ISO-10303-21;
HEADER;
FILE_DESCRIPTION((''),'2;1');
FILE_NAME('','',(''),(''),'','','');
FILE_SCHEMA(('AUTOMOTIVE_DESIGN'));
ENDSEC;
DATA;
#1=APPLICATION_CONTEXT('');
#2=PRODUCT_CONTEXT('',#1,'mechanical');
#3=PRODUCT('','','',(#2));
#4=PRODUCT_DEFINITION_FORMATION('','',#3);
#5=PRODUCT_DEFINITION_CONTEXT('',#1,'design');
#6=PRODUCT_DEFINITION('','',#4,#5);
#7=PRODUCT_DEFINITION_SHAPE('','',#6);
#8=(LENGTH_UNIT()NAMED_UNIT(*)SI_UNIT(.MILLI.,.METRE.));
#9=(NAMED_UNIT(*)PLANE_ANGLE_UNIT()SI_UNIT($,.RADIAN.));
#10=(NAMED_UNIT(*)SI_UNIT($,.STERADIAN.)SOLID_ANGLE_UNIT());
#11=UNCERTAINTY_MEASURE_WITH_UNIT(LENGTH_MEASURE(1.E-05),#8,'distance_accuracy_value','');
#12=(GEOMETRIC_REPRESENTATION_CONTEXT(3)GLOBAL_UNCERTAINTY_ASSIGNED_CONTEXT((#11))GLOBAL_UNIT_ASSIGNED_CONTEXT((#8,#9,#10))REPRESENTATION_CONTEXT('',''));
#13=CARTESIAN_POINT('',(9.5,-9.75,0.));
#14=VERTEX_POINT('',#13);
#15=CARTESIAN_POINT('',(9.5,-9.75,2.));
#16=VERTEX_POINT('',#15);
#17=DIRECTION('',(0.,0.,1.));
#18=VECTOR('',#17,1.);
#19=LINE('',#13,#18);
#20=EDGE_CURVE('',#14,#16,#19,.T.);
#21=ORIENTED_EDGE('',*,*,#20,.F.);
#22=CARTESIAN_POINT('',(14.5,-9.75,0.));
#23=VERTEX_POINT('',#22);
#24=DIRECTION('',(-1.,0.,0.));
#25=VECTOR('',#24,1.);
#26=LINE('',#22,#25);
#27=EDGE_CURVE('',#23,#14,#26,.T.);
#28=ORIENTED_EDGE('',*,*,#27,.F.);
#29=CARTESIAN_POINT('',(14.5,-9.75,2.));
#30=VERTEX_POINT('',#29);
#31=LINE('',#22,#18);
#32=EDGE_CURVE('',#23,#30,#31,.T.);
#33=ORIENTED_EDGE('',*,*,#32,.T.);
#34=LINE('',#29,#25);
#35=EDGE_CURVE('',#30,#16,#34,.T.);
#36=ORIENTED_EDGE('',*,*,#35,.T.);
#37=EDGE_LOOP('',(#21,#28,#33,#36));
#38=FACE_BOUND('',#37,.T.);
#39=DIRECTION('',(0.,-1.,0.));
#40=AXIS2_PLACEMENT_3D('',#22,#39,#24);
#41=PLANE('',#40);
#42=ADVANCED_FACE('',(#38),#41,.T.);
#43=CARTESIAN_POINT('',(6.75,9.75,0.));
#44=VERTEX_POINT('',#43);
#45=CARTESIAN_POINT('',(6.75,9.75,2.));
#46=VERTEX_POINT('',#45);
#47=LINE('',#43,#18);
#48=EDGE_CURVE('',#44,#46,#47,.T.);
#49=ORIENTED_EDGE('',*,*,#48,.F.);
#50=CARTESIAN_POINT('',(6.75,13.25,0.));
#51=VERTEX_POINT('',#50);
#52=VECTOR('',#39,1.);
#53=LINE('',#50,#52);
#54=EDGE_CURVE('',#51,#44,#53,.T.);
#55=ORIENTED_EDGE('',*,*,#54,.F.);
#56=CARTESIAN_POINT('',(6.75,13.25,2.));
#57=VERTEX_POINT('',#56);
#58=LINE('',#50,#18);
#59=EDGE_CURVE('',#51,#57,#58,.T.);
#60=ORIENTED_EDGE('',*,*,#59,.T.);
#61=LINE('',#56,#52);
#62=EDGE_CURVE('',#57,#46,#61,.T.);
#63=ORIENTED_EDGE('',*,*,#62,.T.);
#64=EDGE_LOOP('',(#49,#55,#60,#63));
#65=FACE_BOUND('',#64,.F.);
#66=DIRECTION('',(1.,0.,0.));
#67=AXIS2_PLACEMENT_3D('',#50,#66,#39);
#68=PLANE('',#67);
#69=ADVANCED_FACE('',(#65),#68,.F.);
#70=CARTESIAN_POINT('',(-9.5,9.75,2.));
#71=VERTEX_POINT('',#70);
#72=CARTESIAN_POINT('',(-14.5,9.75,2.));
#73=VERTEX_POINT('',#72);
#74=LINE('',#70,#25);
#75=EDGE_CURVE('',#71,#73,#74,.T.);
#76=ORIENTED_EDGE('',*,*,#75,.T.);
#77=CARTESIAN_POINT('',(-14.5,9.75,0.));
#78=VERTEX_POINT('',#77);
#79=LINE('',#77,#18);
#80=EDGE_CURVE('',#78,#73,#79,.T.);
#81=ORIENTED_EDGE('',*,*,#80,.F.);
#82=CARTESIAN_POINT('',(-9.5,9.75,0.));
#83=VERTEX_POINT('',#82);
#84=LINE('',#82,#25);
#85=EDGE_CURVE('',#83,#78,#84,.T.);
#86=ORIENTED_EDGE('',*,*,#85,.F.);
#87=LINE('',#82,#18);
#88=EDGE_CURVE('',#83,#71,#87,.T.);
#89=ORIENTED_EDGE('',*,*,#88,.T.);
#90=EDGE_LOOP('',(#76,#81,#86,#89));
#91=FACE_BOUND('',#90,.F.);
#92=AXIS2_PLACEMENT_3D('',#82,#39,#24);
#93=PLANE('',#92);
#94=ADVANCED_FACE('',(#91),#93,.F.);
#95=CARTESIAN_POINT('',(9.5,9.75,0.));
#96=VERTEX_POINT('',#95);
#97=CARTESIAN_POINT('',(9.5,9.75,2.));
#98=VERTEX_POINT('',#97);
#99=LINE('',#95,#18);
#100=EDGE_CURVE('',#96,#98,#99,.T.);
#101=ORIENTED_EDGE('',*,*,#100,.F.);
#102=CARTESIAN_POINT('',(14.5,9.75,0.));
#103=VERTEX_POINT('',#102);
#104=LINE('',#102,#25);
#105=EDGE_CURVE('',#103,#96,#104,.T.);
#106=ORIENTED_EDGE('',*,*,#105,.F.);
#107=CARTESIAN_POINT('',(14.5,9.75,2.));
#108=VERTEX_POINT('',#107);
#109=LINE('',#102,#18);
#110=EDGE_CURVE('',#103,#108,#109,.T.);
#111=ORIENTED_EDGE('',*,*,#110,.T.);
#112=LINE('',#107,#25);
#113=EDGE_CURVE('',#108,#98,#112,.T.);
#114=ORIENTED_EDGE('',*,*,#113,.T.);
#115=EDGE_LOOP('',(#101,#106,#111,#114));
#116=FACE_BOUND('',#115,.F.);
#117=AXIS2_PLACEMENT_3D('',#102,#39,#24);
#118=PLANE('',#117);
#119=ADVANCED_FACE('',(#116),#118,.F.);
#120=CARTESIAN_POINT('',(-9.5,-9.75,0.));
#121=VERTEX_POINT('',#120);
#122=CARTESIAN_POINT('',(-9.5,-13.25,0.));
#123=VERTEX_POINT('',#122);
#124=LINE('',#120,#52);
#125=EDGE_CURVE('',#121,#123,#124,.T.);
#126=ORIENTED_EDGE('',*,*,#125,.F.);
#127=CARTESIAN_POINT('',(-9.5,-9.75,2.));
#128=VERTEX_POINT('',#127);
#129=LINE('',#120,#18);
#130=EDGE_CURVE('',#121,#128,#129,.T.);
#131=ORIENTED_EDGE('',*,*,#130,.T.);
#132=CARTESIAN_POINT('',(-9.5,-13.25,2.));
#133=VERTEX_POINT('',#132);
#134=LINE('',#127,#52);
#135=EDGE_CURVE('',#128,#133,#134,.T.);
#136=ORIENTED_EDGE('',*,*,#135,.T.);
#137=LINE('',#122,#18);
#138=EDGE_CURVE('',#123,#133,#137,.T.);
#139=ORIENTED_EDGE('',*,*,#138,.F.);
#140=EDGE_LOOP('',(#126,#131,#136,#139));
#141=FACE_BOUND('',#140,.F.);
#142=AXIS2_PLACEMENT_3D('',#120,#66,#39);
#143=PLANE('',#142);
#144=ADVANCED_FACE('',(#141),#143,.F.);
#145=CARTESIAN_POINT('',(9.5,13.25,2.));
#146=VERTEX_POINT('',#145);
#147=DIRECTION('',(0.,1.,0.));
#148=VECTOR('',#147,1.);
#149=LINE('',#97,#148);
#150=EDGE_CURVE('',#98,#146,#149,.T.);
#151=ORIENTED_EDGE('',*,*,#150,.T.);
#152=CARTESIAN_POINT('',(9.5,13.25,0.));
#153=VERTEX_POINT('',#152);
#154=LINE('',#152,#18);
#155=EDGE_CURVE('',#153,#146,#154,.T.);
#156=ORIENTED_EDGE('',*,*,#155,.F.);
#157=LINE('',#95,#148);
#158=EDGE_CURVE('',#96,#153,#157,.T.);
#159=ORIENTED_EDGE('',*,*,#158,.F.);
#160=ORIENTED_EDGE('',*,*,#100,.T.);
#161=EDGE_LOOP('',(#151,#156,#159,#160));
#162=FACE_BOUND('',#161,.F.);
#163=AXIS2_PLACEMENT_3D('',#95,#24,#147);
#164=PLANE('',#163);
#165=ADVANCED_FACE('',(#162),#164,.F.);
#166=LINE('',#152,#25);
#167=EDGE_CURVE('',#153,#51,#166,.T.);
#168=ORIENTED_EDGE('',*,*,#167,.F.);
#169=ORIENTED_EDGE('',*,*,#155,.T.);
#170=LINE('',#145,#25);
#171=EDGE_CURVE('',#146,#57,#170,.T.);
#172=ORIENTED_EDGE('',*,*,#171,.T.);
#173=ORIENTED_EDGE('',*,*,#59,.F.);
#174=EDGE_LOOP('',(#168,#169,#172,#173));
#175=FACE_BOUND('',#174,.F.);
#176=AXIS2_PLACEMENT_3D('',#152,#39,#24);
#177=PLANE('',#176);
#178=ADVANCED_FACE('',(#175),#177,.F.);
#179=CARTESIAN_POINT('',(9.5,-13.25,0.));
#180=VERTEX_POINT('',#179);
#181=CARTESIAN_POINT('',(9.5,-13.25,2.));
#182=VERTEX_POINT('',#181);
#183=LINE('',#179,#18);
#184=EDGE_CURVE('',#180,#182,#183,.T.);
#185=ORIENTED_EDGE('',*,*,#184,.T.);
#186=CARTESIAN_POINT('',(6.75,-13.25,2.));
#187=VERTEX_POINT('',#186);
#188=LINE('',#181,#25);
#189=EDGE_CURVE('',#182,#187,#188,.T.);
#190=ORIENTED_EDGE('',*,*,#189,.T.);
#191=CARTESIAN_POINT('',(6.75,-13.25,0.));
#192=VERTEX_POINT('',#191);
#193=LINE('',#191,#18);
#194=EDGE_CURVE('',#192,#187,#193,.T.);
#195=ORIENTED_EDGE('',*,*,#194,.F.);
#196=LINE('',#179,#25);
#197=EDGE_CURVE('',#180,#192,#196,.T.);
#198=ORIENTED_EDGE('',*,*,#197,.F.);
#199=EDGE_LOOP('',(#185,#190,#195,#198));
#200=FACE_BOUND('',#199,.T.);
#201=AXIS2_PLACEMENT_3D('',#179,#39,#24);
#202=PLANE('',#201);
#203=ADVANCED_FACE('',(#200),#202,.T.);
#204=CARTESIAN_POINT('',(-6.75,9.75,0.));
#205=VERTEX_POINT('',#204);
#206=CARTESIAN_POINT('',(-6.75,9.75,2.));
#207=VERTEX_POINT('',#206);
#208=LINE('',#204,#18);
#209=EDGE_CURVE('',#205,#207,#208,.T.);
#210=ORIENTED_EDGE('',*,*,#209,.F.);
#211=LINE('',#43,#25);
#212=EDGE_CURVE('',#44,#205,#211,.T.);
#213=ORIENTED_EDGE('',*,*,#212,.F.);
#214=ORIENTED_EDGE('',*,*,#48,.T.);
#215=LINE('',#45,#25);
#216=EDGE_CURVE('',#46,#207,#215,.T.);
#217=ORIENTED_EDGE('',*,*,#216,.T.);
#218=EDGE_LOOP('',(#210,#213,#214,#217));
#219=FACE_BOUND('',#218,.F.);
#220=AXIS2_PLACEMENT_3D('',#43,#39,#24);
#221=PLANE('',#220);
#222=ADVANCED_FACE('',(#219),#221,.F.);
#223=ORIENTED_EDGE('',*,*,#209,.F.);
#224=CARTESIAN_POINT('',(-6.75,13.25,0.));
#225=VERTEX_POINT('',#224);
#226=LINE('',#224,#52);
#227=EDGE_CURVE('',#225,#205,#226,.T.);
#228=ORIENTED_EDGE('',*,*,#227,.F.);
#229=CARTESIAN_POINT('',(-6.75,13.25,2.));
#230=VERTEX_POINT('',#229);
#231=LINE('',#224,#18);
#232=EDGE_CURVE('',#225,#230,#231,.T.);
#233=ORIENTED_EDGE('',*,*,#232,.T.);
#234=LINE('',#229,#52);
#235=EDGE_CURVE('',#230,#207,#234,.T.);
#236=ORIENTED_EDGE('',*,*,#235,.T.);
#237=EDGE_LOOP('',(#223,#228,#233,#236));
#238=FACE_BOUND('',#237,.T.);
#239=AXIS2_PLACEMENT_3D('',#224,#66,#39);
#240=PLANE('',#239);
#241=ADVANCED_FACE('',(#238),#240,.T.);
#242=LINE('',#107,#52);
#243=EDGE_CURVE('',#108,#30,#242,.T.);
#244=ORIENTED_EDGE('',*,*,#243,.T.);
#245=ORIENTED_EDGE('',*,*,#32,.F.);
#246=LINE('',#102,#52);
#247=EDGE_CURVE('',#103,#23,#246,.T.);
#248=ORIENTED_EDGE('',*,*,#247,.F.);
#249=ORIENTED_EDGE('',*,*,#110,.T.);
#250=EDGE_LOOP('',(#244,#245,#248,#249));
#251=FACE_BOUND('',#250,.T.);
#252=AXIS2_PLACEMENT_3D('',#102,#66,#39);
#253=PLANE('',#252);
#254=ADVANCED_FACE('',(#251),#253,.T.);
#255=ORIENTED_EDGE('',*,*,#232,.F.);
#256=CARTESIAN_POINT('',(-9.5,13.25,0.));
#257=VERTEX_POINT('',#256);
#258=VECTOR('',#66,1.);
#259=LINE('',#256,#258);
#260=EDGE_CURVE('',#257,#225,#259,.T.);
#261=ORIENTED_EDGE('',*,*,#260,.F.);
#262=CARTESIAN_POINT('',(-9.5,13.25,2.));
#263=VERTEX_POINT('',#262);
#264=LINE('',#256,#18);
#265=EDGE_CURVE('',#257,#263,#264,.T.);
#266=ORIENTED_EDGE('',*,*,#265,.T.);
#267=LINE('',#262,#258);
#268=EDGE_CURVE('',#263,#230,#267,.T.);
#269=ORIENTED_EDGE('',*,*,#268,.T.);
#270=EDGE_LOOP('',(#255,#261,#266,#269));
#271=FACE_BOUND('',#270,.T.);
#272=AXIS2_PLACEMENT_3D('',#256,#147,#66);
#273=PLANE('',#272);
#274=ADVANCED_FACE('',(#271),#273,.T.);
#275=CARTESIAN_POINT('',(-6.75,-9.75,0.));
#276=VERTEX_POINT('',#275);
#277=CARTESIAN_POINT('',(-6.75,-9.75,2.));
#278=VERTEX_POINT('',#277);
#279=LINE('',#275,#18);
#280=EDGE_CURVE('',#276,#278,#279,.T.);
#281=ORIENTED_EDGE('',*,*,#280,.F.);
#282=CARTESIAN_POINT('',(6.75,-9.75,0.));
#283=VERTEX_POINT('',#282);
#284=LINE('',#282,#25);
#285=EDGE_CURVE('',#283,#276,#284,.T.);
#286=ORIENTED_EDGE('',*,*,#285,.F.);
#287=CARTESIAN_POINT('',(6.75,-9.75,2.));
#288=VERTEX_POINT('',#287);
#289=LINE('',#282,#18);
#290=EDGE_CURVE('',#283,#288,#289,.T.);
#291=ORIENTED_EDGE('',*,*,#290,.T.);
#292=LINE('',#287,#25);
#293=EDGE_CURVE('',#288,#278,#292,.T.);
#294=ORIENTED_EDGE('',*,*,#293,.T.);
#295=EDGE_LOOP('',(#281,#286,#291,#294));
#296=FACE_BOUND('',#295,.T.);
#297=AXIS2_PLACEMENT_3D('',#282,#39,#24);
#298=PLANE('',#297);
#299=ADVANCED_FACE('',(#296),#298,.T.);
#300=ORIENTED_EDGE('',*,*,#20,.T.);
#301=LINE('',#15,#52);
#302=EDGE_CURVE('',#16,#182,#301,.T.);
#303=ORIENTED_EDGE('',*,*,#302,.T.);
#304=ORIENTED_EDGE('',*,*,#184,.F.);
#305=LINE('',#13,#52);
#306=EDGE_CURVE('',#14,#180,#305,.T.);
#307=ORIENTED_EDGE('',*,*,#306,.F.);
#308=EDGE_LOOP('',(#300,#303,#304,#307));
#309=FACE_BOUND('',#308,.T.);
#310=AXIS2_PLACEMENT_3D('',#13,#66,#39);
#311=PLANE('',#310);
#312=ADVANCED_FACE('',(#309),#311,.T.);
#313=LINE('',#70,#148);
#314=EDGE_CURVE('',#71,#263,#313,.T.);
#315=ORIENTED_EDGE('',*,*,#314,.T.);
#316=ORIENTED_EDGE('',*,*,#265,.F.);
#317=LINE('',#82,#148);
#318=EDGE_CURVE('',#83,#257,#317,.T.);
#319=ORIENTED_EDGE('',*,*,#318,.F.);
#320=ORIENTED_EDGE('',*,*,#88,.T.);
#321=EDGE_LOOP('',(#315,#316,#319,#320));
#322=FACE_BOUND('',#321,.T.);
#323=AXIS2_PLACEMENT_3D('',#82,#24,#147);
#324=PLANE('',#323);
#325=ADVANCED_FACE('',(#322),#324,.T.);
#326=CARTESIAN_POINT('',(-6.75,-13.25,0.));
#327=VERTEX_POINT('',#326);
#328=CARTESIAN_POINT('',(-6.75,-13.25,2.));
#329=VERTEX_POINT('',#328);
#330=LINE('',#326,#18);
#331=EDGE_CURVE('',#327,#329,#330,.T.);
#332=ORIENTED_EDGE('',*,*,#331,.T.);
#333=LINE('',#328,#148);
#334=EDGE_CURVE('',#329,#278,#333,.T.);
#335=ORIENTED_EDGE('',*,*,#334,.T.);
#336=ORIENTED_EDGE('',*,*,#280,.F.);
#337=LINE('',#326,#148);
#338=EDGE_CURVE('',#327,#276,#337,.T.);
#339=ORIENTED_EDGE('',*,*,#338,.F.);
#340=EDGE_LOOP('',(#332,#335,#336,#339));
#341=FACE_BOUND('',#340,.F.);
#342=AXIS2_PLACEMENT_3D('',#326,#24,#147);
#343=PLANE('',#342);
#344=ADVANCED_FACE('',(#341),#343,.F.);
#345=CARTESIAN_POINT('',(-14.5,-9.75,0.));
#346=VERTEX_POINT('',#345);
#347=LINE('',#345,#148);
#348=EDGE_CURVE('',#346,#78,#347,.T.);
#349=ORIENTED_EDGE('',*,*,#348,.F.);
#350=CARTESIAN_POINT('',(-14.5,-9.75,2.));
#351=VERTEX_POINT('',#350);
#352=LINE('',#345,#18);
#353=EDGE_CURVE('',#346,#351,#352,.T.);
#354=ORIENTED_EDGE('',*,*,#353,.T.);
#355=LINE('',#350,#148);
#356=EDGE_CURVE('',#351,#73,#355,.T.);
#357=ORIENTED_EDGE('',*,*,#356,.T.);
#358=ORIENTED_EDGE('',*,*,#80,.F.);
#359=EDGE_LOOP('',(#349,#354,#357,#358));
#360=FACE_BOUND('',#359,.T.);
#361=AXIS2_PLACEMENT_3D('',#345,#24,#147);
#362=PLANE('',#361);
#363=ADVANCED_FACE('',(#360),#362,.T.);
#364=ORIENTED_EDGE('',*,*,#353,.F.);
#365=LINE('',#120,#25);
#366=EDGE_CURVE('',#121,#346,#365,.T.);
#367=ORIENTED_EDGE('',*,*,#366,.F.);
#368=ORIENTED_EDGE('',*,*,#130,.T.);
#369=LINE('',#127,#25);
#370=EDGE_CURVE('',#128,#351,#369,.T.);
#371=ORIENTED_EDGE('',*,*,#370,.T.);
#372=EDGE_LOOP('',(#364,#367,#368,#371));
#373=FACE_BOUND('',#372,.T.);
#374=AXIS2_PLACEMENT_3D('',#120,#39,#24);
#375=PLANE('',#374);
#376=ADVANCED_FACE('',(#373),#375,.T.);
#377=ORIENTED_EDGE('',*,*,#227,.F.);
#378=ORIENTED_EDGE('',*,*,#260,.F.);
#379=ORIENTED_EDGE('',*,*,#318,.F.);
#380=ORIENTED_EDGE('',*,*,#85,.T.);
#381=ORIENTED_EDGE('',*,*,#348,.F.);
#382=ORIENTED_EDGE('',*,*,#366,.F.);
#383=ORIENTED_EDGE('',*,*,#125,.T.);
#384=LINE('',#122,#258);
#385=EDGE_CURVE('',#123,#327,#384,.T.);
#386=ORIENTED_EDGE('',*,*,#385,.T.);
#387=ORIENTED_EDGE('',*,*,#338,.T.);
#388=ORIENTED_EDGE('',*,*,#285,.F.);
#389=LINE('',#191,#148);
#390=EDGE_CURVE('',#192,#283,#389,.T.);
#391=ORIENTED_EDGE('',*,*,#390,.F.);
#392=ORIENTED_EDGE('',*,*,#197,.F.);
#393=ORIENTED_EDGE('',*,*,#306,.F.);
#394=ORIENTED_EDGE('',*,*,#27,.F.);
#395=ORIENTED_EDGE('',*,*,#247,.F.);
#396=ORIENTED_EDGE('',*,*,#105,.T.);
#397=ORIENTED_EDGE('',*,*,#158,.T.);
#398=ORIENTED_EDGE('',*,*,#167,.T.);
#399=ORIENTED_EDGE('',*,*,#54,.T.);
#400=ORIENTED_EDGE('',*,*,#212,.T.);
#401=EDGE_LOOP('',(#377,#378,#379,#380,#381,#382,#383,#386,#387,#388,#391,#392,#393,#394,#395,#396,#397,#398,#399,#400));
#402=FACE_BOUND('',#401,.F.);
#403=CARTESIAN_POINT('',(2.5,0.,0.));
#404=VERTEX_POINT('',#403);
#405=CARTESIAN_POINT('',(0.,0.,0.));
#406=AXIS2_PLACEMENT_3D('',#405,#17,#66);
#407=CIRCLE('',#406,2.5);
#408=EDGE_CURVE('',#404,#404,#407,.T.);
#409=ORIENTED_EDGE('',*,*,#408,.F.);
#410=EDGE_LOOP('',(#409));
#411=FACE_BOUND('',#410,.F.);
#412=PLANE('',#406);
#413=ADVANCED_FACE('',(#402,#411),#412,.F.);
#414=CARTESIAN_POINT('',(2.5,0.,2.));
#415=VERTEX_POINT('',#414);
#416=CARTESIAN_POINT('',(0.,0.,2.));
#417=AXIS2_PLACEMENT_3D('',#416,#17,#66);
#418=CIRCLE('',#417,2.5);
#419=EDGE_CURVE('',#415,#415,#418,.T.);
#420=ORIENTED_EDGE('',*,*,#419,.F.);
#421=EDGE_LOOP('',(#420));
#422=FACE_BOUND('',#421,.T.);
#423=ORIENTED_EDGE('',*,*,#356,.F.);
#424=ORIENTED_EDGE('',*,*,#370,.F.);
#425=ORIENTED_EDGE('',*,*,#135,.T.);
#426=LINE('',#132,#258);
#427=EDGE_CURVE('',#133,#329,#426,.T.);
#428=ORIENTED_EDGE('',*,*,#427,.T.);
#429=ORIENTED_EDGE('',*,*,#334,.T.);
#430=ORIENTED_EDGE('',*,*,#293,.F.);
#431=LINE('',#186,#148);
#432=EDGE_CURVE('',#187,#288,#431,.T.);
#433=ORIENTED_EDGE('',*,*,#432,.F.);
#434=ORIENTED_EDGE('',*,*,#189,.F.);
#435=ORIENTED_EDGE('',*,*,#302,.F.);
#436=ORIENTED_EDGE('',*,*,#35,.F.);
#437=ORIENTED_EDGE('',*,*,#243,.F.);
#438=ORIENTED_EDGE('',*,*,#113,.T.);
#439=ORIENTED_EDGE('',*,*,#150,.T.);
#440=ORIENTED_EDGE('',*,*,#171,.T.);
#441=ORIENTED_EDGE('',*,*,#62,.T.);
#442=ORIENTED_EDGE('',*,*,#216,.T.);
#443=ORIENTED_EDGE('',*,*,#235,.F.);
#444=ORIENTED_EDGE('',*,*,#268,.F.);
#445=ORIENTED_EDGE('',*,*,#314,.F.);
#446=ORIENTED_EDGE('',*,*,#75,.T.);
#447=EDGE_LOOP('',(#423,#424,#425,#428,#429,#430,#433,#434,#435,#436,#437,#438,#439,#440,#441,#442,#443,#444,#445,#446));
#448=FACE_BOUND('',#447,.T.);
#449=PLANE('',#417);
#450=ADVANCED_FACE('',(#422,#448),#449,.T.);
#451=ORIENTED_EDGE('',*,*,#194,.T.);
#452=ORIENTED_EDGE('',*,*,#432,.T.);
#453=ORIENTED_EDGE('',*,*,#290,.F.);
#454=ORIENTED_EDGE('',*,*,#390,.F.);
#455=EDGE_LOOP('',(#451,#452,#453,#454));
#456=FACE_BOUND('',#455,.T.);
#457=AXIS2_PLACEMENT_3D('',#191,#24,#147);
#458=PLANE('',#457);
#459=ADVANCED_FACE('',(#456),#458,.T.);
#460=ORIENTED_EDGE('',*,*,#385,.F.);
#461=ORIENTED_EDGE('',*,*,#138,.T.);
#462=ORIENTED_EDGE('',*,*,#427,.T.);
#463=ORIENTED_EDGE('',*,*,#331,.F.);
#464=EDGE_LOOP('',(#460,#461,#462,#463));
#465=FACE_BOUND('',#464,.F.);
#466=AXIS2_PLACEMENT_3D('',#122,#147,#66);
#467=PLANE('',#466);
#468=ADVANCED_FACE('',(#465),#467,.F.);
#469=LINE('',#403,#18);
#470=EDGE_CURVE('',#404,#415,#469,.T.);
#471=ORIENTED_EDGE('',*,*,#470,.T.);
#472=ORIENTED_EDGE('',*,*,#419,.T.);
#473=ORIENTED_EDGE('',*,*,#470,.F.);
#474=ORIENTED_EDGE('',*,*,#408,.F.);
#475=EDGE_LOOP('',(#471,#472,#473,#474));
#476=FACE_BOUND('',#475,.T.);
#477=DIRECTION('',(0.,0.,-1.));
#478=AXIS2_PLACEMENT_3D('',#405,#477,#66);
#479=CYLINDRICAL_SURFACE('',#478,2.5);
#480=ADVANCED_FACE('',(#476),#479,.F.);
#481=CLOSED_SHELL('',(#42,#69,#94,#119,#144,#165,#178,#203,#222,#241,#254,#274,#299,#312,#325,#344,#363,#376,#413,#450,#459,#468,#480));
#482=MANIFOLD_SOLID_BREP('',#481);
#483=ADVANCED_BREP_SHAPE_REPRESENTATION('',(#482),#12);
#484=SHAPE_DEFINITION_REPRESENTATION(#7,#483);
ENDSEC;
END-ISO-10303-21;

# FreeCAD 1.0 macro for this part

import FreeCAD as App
import Part
import Sketcher

V = App.Vector


def add_polygon(sketch, points):
    """Adds a closed chain of lines whose ends are joined by coincident constraints."""
    first, n = sketch.GeometryCount, len(points)
    for a, b in zip(points, points[1:] + points[:1]):
        sketch.addGeometry(Part.LineSegment(App.Vector(*a, 0), App.Vector(*b, 0)), False)
    for i in range(n):
        sketch.addConstraint(Sketcher.Constraint("Coincident", first + i, 2, first + (i + 1) % n, 1))

doc = App.newDocument("Part")
params = doc.addObject("Spreadsheet::Sheet", "Params")
for row, (alias, value) in enumerate([
    ("sketch1_diameter", "5 mm"),
    ("sketch1_width", "5 mm"),
    ("sketch1_height", "19.5 mm"),
    ("sketch1_height2", "3.5 mm"),
    ("sketch1_width2", "2.75 mm"),
    ("pad1_length", "2 mm"),
], start=1):
    params.set(f"A{row}", alias)
    params.set(f"B{row}", "=" + value)
    params.setAlias(f"B{row}", alias)

body = doc.addObject("PartDesign::Body", "Body")

sketch1 = body.newObject("Sketcher::SketchObject", "Sketch")
sketch1.AttachmentSupport = (doc.getObject("XY_Plane"), [""])
sketch1.MapMode = "FlatFace"
add_polygon(sketch1, [(14.5, -9.8), (14.5, 9.8), (9.5, 9.8), (9.5, 13.2), (6.8, 13.2), (6.8, 9.8), (-6.8, 9.8), (-6.8, 13.2), (-9.5, 13.2), (-9.5, 9.8), (-14.5, 9.8), (-14.5, -9.8), (-9.5, -9.8), (-9.5, -13.2), (-6.8, -13.2), (-6.8, -9.8), (6.8, -9.8), (6.8, -13.2), (9.5, -13.2), (9.5, -9.8)])
sketch1.addGeometry(Part.Circle(V(0, 0, 0), V(0, 0, 1), 2.5), False)
sketch1.addConstraint([
    Sketcher.Constraint("Vertical", 0),
    Sketcher.Constraint("Horizontal", 1),
    Sketcher.Constraint("Vertical", 2),
    Sketcher.Constraint("Horizontal", 3),
    Sketcher.Constraint("Vertical", 4),
    Sketcher.Constraint("Horizontal", 5),
    Sketcher.Constraint("Vertical", 6),
    Sketcher.Constraint("Horizontal", 7),
    Sketcher.Constraint("Vertical", 8),
    Sketcher.Constraint("Horizontal", 9),
    Sketcher.Constraint("Vertical", 10),
    Sketcher.Constraint("Horizontal", 11),
    Sketcher.Constraint("Vertical", 12),
    Sketcher.Constraint("Horizontal", 13),
    Sketcher.Constraint("Vertical", 14),
    Sketcher.Constraint("Horizontal", 15),
    Sketcher.Constraint("Vertical", 16),
    Sketcher.Constraint("Horizontal", 17),
    Sketcher.Constraint("Vertical", 18),
    Sketcher.Constraint("Horizontal", 19),
    Sketcher.Constraint("Coincident", 20, 3, -1, 1),
    Sketcher.Constraint("Symmetric", 0, 2, 10, 2, -1, 1),
    Sketcher.Constraint("Symmetric", 2, 2, 12, 2, -1, 1),
    Sketcher.Constraint("Symmetric", 4, 2, 14, 2, -1, 1),
    Sketcher.Constraint("Symmetric", 6, 2, 16, 2, -1, 1),
    Sketcher.Constraint("Symmetric", 8, 2, 18, 2, -1, 1),
    Sketcher.Constraint("Symmetric", 3, 2, 6, 2, -2),
    Sketcher.Constraint("Symmetric", 1, 2, 8, 2, -2),
    Sketcher.Constraint("Horizontal", 1, 2, 4, 2),
    Sketcher.Constraint("Diameter", 20, 5.0),
    Sketcher.Constraint("DistanceX", 1, 2, 1, 1, 5.0),
    Sketcher.Constraint("DistanceY", 0, 1, 0, 2, 19.5),
    Sketcher.Constraint("DistanceY", 2, 1, 2, 2, 3.5),
    Sketcher.Constraint("DistanceX", 3, 2, 3, 1, 2.75),
    Sketcher.Constraint("DistanceX", 5, 2, 5, 1, 13.5),
])
sketch1.setExpression("Constraints[49]", "Params.sketch1_diameter")
sketch1.setExpression("Constraints[50]", "Params.sketch1_width")
sketch1.setExpression("Constraints[51]", "Params.sketch1_height")
sketch1.setExpression("Constraints[52]", "Params.sketch1_height2")
sketch1.setExpression("Constraints[53]", "Params.sketch1_width2")
pad1 = body.newObject("PartDesign::Pad", "Pad")
pad1.Profile = sketch1
pad1.setExpression("Length", "Params.pad1_length")

doc.recompute()
